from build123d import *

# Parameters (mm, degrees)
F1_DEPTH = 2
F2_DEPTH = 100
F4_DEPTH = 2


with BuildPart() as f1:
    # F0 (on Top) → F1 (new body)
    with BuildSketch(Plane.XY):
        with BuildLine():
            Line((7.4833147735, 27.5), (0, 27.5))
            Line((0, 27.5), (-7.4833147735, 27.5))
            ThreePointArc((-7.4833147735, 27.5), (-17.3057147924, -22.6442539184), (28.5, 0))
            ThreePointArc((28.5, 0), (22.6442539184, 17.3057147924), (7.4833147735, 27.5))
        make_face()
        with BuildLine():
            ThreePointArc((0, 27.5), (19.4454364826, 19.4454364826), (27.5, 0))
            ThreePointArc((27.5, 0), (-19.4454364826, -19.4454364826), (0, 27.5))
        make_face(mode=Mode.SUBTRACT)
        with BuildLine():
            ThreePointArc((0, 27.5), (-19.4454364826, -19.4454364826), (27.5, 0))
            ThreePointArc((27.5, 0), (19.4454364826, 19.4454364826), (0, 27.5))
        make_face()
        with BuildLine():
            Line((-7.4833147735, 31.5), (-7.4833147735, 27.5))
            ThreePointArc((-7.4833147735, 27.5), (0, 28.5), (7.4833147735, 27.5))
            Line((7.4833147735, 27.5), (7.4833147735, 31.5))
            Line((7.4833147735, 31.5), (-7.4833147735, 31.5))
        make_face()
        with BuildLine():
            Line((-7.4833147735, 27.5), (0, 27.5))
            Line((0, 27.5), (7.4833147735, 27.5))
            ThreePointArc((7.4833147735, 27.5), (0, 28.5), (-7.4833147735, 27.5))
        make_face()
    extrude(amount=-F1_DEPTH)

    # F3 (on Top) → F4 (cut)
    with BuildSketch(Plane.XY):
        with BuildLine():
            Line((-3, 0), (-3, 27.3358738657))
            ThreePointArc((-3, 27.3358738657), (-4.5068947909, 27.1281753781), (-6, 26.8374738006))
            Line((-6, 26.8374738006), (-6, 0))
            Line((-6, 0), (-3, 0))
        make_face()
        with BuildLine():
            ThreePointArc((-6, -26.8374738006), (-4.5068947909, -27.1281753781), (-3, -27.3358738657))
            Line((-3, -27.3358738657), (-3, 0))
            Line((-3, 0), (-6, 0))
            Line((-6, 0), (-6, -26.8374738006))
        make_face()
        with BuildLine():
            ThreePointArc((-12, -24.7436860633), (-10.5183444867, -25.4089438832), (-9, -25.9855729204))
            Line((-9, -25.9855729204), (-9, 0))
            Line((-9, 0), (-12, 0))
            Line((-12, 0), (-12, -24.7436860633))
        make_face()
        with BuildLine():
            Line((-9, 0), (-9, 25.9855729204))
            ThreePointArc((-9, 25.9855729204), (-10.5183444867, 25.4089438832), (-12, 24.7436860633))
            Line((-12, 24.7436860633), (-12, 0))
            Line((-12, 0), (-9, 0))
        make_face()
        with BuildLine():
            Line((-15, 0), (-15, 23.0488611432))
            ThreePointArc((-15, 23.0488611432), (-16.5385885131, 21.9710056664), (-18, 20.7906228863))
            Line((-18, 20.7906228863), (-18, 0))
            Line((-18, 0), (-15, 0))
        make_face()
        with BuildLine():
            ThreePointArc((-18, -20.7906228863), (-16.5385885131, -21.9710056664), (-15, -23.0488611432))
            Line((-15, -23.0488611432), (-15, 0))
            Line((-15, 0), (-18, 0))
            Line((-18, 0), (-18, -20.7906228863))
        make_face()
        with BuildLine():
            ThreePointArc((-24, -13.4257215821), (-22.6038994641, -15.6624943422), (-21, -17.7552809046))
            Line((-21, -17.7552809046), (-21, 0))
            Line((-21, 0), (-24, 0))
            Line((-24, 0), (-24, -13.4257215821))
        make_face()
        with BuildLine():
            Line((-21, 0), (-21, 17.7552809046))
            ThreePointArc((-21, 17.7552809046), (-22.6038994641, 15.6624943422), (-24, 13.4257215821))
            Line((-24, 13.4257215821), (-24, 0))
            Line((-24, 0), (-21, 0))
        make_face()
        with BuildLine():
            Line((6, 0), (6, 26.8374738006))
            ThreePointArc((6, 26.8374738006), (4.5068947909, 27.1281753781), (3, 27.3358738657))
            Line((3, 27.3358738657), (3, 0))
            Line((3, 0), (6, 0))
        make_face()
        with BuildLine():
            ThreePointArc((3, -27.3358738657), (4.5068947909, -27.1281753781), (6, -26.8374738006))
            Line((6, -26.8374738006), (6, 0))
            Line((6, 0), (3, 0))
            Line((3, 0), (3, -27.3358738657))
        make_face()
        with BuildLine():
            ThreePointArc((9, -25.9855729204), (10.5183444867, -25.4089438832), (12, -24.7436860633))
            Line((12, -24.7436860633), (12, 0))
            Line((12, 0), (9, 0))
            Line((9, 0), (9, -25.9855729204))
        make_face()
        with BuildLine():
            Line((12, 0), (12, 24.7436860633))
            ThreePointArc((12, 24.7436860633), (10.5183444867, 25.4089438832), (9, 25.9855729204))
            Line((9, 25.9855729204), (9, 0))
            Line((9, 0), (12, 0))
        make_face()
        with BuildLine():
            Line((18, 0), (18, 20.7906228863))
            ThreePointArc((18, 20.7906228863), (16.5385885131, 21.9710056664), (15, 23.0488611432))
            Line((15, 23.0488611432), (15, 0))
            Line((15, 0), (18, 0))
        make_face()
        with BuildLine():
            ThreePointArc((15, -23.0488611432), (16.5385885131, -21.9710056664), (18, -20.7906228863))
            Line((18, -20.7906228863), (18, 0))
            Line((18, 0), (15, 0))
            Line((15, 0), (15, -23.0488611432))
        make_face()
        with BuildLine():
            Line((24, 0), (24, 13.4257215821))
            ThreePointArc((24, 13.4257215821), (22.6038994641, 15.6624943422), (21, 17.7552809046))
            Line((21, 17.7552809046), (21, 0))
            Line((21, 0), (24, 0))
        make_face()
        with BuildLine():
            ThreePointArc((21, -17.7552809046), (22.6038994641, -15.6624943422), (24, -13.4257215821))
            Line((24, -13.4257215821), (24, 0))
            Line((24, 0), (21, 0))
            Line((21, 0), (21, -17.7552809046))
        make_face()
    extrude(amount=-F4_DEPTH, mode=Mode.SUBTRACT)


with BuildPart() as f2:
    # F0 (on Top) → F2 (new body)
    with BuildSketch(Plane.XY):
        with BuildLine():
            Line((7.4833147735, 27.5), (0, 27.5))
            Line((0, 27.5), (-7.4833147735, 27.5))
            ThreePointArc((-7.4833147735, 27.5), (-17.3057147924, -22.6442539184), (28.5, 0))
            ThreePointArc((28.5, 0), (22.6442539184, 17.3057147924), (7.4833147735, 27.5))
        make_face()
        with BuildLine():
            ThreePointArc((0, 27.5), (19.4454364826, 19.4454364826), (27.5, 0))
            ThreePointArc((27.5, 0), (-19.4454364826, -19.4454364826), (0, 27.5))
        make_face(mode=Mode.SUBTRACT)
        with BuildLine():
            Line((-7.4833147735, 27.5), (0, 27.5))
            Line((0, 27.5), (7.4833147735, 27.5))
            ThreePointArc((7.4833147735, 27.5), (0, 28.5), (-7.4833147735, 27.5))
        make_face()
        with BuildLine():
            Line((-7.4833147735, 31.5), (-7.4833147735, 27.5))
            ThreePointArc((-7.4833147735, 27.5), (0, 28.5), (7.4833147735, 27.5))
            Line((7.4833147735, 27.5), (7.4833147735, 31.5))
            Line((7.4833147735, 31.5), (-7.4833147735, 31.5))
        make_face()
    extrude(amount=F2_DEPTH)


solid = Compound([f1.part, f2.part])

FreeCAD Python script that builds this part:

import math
import FreeCAD as App
import Part
import Sketcher
Q = App.Units.Quantity

doc = App.newDocument("Part")
params = doc.addObject("Spreadsheet::Sheet", "Params")
for row, (alias, value) in enumerate([
    ("sketch1_radius", "28.5 mm"),
    ("sketch1_height", "4 mm"),
    ("pad1_length", "2 mm"),
    ("sketch2_radius", "27.5 mm"),
    ("pocket1_length", "2 mm"),
    ("sketch3_radius", "28.5 mm"),
    ("sketch3_radius2", "27.5 mm"),
    ("sketch3_height", "4 mm"),
    ("pad2_length", "100 mm"),
], start=1):
    params.set(f"A{row}", alias)
    params.set(f"B{row}", "=" + value)
    params.setAlias(f"B{row}", alias)

body = doc.addObject("PartDesign::Body", "Body")

sketch1 = body.newObject("Sketcher::SketchObject", "Sketch")
sketch1.AttachmentSupport = (doc.getObject("XY_Plane"), [""])
sketch1.MapMode = "FlatFace"
sketch1.addGeometry(Part.ArcOfCircle(Part.Circle(App.Vector(0, 0, 0), App.Vector(0, 0, 1), 28.5), math.radians(105.222757), math.radians(360)), False)
sketch1.addGeometry(Part.ArcOfCircle(Part.Circle(App.Vector(0, 0, 0), App.Vector(0, 0, 1), 28.5), math.radians(0), math.radians(74.777243)), False)
sketch1.addGeometry(Part.LineSegment(App.Vector(7.483315, 27.5, 0), App.Vector(7.483315, 31.5, 0)), False)
sketch1.addGeometry(Part.LineSegment(App.Vector(7.483315, 31.5, 0), App.Vector(-7.483315, 31.5, 0)), False)
sketch1.addGeometry(Part.LineSegment(App.Vector(-7.483315, 31.5, 0), App.Vector(-7.483315, 27.5, 0)), False)
sketch1.addConstraint(Sketcher.Constraint("Tangent", 0, 2, 1, 1))
sketch1.addConstraint(Sketcher.Constraint("Coincident", 1, 2, 2, 1))
sketch1.addConstraint(Sketcher.Constraint("Coincident", 2, 2, 3, 1))
sketch1.addConstraint(Sketcher.Constraint("Coincident", 3, 2, 4, 1))
sketch1.addConstraint(Sketcher.Constraint("Coincident", 4, 2, 0, 1))
sketch1.addConstraint(Sketcher.Constraint("Vertical", 2))
sketch1.addConstraint(Sketcher.Constraint("Horizontal", 3))
sketch1.addConstraint(Sketcher.Constraint("Vertical", 4))
sketch1.addConstraint(Sketcher.Constraint("Coincident", 0, 3, -1, 1))
sketch1.addConstraint(Sketcher.Constraint("Equal", 0, 1))
sketch1.addConstraint(Sketcher.Constraint("PointOnObject", 0, 2, -1))
sketch1.addConstraint(Sketcher.Constraint("Horizontal", 1, 2, 4, 2))
sketch1.addConstraint(Sketcher.Constraint("Radius", 0, Q("28.5 mm")))
sketch1.addConstraint(Sketcher.Constraint("DistanceY", 2, 1, 2, 2, Q("4 mm")))
sketch1.addConstraint(Sketcher.Constraint("DistanceY", -1, 1, 1, 2, Q("27.5 mm")))
sketch1.setExpression("Constraints[12]", "Params.sketch1_radius")
sketch1.setExpression("Constraints[13]", "Params.sketch1_height")
pad1 = body.newObject("PartDesign::Pad", "Pad")
pad1.Profile = sketch1
pad1.setExpression("Length", "Params.pad1_length")
pad1.Reversed = True

sketch2 = body.newObject("Sketcher::SketchObject", "Sketch001")
sketch2.AttachmentSupport = (doc.getObject("XY_Plane"), [""])
sketch2.MapMode = "FlatFace"
sketch2.addGeometry(Part.ArcOfCircle(Part.Circle(App.Vector(0, 0, 0), App.Vector(0, 0, 1), 27.5), math.radians(96.262913), math.radians(102.602265)), False)
sketch2.addGeometry(Part.LineSegment(App.Vector(-6, 26.837474, 0), App.Vector(-6, -26.837474, 0)), False)
sketch2.addGeometry(Part.ArcOfCircle(Part.Circle(App.Vector(0, 0, 0), App.Vector(0, 0, 1), 27.5), math.radians(-102.602265), math.radians(-96.262913)), False)
sketch2.addGeometry(Part.LineSegment(App.Vector(-3, -27.335874, 0), App.Vector(-3, 27.335874, 0)), False)
sketch2.addGeometry(Part.ArcOfCircle(Part.Circle(App.Vector(0, 0, 0), App.Vector(0, 0, 1), 27.5), math.radians(-115.872096), math.radians(-109.103324)), False)
sketch2.addGeometry(Part.LineSegment(App.Vector(-9, -25.985573, 0), App.Vector(-9, 25.985573, 0)), False)
sketch2.addGeometry(Part.ArcOfCircle(Part.Circle(App.Vector(0, 0, 0), App.Vector(0, 0, 1), 27.5), math.radians(109.103324), math.radians(115.872096)), False)
sketch2.addGeometry(Part.LineSegment(App.Vector(-12, 24.743686, 0), App.Vector(-12, -24.743686, 0)), False)
sketch2.addGeometry(Part.ArcOfCircle(Part.Circle(App.Vector(0, 0, 0), App.Vector(0, 0, 1), 27.5), math.radians(123.055731), math.radians(130.885193)), False)
sketch2.addGeometry(Part.LineSegment(App.Vector(-18, 20.790623, 0), App.Vector(-18, -20.790623, 0)), False)
sketch2.addGeometry(Part.ArcOfCircle(Part.Circle(App.Vector(0, 0, 0), App.Vector(0, 0, 1), 27.5), math.radians(-130.885193), math.radians(-123.055731)), False)
sketch2.addGeometry(Part.LineSegment(App.Vector(-15, -23.048861, 0), App.Vector(-15, 23.048861, 0)), False)
sketch2.addGeometry(Part.ArcOfCircle(Part.Circle(App.Vector(0, 0, 0), App.Vector(0, 0, 1), 27.5), math.radians(-150.77713), math.radians(-139.785829)), False)
sketch2.addGeometry(Part.LineSegment(App.Vector(-21, -17.755281, 0), App.Vector(-21, 17.755281, 0)), False)
sketch2.addGeometry(Part.ArcOfCircle(Part.Circle(App.Vector(0, 0, 0), App.Vector(0, 0, 1), 27.5), math.radians(139.785829), math.radians(150.77713)), False)
sketch2.addGeometry(Part.LineSegment(App.Vector(-24, 13.425722, 0), App.Vector(-24, -13.425722, 0)), False)
sketch2.addGeometry(Part.ArcOfCircle(Part.Circle(App.Vector(0, 0, 0), App.Vector(0, 0, 1), 27.5), math.radians(77.397735), math.radians(83.737087)), False)
sketch2.addGeometry(Part.LineSegment(App.Vector(3, 27.335874, 0), App.Vector(3, -27.335874, 0)), False)
sketch2.addGeometry(Part.ArcOfCircle(Part.Circle(App.Vector(0, 0, 0), App.Vector(0, 0, 1), 27.5), math.radians(-83.737087), math.radians(-77.397735)), False)
sketch2.addGeometry(Part.LineSegment(App.Vector(6, -26.837474, 0), App.Vector(6, 26.837474, 0)), False)
sketch2.addGeometry(Part.ArcOfCircle(Part.Circle(App.Vector(0, 0, 0), App.Vector(0, 0, 1), 27.5), math.radians(-70.896676), math.radians(-64.127904)), False)
sketch2.addGeometry(Part.LineSegment(App.Vector(12, -24.743686, 0), App.Vector(12, 24.743686, 0)), False)
sketch2.addGeometry(Part.ArcOfCircle(Part.Circle(App.Vector(0, 0, 0), App.Vector(0, 0, 1), 27.5), math.radians(64.127904), math.radians(70.896676)), False)
sketch2.addGeometry(Part.LineSegment(App.Vector(9, 25.985573, 0), App.Vector(9, -25.985573, 0)), False)
sketch2.addGeometry(Part.ArcOfCircle(Part.Circle(App.Vector(0, 0, 0), App.Vector(0, 0, 1), 27.5), math.radians(49.114807), math.radians(56.944269)), False)
sketch2.addGeometry(Part.LineSegment(App.Vector(15, 23.048861, 0), App.Vector(15, -23.048861, 0)), False)
sketch2.addGeometry(Part.ArcOfCircle(Part.Circle(App.Vector(0, 0, 0), App.Vector(0, 0, 1), 27.5), math.radians(-56.944269), math.radians(-49.114807)), False)
sketch2.addGeometry(Part.LineSegment(App.Vector(18, -20.790623, 0), App.Vector(18, 20.790623, 0)), False)
sketch2.addGeometry(Part.ArcOfCircle(Part.Circle(App.Vector(0, 0, 0), App.Vector(0, 0, 1), 27.5), math.radians(29.22287), math.radians(40.214171)), False)
sketch2.addGeometry(Part.LineSegment(App.Vector(21, 17.755281, 0), App.Vector(21, -17.755281, 0)), False)
sketch2.addGeometry(Part.ArcOfCircle(Part.Circle(App.Vector(0, 0, 0), App.Vector(0, 0, 1), 27.5), math.radians(-40.214171), math.radians(-29.22287)), False)
sketch2.addGeometry(Part.LineSegment(App.Vector(24, -13.425722, 0), App.Vector(24, 13.425722, 0)), False)
sketch2.addConstraint(Sketcher.Constraint("Coincident", 0, 2, 1, 1))
sketch2.addConstraint(Sketcher.Constraint("Coincident", 1, 2, 2, 1))
sketch2.addConstraint(Sketcher.Constraint("Coincident", 2, 2, 3, 1))
sketch2.addConstraint(Sketcher.Constraint("Coincident", 3, 2, 0, 1))
sketch2.addConstraint(Sketcher.Constraint("Coincident", 4, 2, 5, 1))
sketch2.addConstraint(Sketcher.Constraint("Coincident", 5, 2, 6, 1))
sketch2.addConstraint(Sketcher.Constraint("Coincident", 6, 2, 7, 1))
sketch2.addConstraint(Sketcher.Constraint("Coincident", 7, 2, 4, 1))
sketch2.addConstraint(Sketcher.Constraint("Coincident", 8, 2, 9, 1))
sketch2.addConstraint(Sketcher.Constraint("Coincident", 9, 2, 10, 1))
sketch2.addConstraint(Sketcher.Constraint("Coincident", 10, 2, 11, 1))
sketch2.addConstraint(Sketcher.Constraint("Coincident", 11, 2, 8, 1))
sketch2.addConstraint(Sketcher.Constraint("Coincident", 12, 2, 13, 1))
sketch2.addConstraint(Sketcher.Constraint("Coincident", 13, 2, 14, 1))
sketch2.addConstraint(Sketcher.Constraint("Coincident", 14, 2, 15, 1))
sketch2.addConstraint(Sketcher.Constraint("Coincident", 15, 2, 12, 1))
sketch2.addConstraint(Sketcher.Constraint("Coincident", 16, 2, 17, 1))
sketch2.addConstraint(Sketcher.Constraint("Coincident", 17, 2, 18, 1))
sketch2.addConstraint(Sketcher.Constraint("Coincident", 18, 2, 19, 1))
sketch2.addConstraint(Sketcher.Constraint("Coincident", 19, 2, 16, 1))
sketch2.addConstraint(Sketcher.Constraint("Coincident", 20, 2, 21, 1))
sketch2.addConstraint(Sketcher.Constraint("Coincident", 21, 2, 22, 1))
sketch2.addConstraint(Sketcher.Constraint("Coincident", 22, 2, 23, 1))
sketch2.addConstraint(Sketcher.Constraint("Coincident", 23, 2, 20, 1))
sketch2.addConstraint(Sketcher.Constraint("Coincident", 24, 2, 25, 1))
sketch2.addConstraint(Sketcher.Constraint("Coincident", 25, 2, 26, 1))
sketch2.addConstraint(Sketcher.Constraint("Coincident", 26, 2, 27, 1))
sketch2.addConstraint(Sketcher.Constraint("Coincident", 27, 2, 24, 1))
sketch2.addConstraint(Sketcher.Constraint("Coincident", 28, 2, 29, 1))
sketch2.addConstraint(Sketcher.Constraint("Coincident", 29, 2, 30, 1))
sketch2.addConstraint(Sketcher.Constraint("Coincident", 30, 2, 31, 1))
sketch2.addConstraint(Sketcher.Constraint("Coincident", 31, 2, 28, 1))
sketch2.addConstraint(Sketcher.Constraint("Vertical", 1))
sketch2.addConstraint(Sketcher.Constraint("Vertical", 3))
sketch2.addConstraint(Sketcher.Constraint("Vertical", 5))
sketch2.addConstraint(Sketcher.Constraint("Vertical", 7))
sketch2.addConstraint(Sketcher.Constraint("Vertical", 9))
sketch2.addConstraint(Sketcher.Constraint("Vertical", 11))
sketch2.addConstraint(Sketcher.Constraint("Vertical", 13))
sketch2.addConstraint(Sketcher.Constraint("Vertical", 15))
sketch2.addConstraint(Sketcher.Constraint("Vertical", 17))
sketch2.addConstraint(Sketcher.Constraint("Vertical", 19))
sketch2.addConstraint(Sketcher.Constraint("Vertical", 21))
sketch2.addConstraint(Sketcher.Constraint("Vertical", 23))
sketch2.addConstraint(Sketcher.Constraint("Vertical", 25))
sketch2.addConstraint(Sketcher.Constraint("Vertical", 27))
sketch2.addConstraint(Sketcher.Constraint("Vertical", 29))
sketch2.addConstraint(Sketcher.Constraint("Vertical", 31))
sketch2.addConstraint(Sketcher.Constraint("Coincident", 0, 3, -1, 1))
sketch2.addConstraint(Sketcher.Constraint("Coincident", 2, 3, -1, 1))
sketch2.addConstraint(Sketcher.Constraint("Coincident", 4, 3, -1, 1))
sketch2.addConstraint(Sketcher.Constraint("Coincident", 6, 3, -1, 1))
sketch2.addConstraint(Sketcher.Constraint("Coincident", 8, 3, -1, 1))
sketch2.addConstraint(Sketcher.Constraint("Coincident", 10, 3, -1, 1))
sketch2.addConstraint(Sketcher.Constraint("Coincident", 12, 3, -1, 1))
sketch2.addConstraint(Sketcher.Constraint("Coincident", 14, 3, -1, 1))
sketch2.addConstraint(Sketcher.Constraint("Coincident", 16, 3, -1, 1))
sketch2.addConstraint(Sketcher.Constraint("Coincident", 18, 3, -1, 1))
sketch2.addConstraint(Sketcher.Constraint("Coincident", 20, 3, -1, 1))
sketch2.addConstraint(Sketcher.Constraint("Coincident", 22, 3, -1, 1))
sketch2.addConstraint(Sketcher.Constraint("Coincident", 24, 3, -1, 1))
sketch2.addConstraint(Sketcher.Constraint("Coincident", 26, 3, -1, 1))
sketch2.addConstraint(Sketcher.Constraint("Coincident", 28, 3, -1, 1))
sketch2.addConstraint(Sketcher.Constraint("Coincident", 30, 3, -1, 1))
sketch2.addConstraint(Sketcher.Constraint("Equal", 0, 2))
sketch2.addConstraint(Sketcher.Constraint("Equal", 2, 4))
sketch2.addConstraint(Sketcher.Constraint("Equal", 4, 6))
sketch2.addConstraint(Sketcher.Constraint("Equal", 6, 8))
sketch2.addConstraint(Sketcher.Constraint("Equal", 8, 10))
sketch2.addConstraint(Sketcher.Constraint("Equal", 10, 12))
sketch2.addConstraint(Sketcher.Constraint("Equal", 12, 14))
sketch2.addConstraint(Sketcher.Constraint("Equal", 14, 16))
sketch2.addConstraint(Sketcher.Constraint("Equal", 16, 18))
sketch2.addConstraint(Sketcher.Constraint("Equal", 18, 20))
sketch2.addConstraint(Sketcher.Constraint("Equal", 20, 22))
sketch2.addConstraint(Sketcher.Constraint("Equal", 22, 24))
sketch2.addConstraint(Sketcher.Constraint("Equal", 24, 26))
sketch2.addConstraint(Sketcher.Constraint("Equal", 26, 28))
sketch2.addConstraint(Sketcher.Constraint("Equal", 28, 30))
sketch2.addConstraint(Sketcher.Constraint("Horizontal", 3, 2, 16, 2))
sketch2.addConstraint(Sketcher.Constraint("Horizontal", 1, 2, 18, 2))
sketch2.addConstraint(Sketcher.Constraint("Horizontal", 7, 2, 20, 2))
sketch2.addConstraint(Sketcher.Constraint("Horizontal", 5, 2, 22, 2))
sketch2.addConstraint(Sketcher.Constraint("Horizontal", 11, 2, 24, 2))
sketch2.addConstraint(Sketcher.Constraint("Horizontal", 9, 2, 26, 2))
sketch2.addConstraint(Sketcher.Constraint("Horizontal", 13, 2, 28, 2))
sketch2.addConstraint(Sketcher.Constraint("Horizontal", 15, 2, 30, 2))
sketch2.addConstraint(Sketcher.Constraint("Radius", 0, Q("27.5 mm")))
sketch2.addConstraint(Sketcher.Constraint("DistanceX", 0, 2, -1, 1, Q("6 mm")))
sketch2.addConstraint(Sketcher.Constraint("DistanceX", 2, 2, -1, 1, Q("3 mm")))
sketch2.addConstraint(Sketcher.Constraint("DistanceX", 4, 2, -1, 1, Q("9 mm")))
sketch2.addConstraint(Sketcher.Constraint("DistanceX", 6, 2, -1, 1, Q("12 mm")))
sketch2.addConstraint(Sketcher.Constraint("DistanceX", 8, 2, -1, 1, Q("18 mm")))
sketch2.addConstraint(Sketcher.Constraint("DistanceX", 10, 2, -1, 1, Q("15 mm")))
sketch2.addConstraint(Sketcher.Constraint("DistanceX", 12, 2, -1, 1, Q("21 mm")))
sketch2.addConstraint(Sketcher.Constraint("DistanceX", 14, 2, -1, 1, Q("24 mm")))
sketch2.setExpression("Constraints[87]", "Params.sketch2_radius")
pocket1 = body.newObject("PartDesign::Pocket", "Pocket")
pocket1.Profile = sketch2
pocket1.setExpression("Length", "Params.pocket1_length")
body2 = doc.addObject("PartDesign::Body", "Body001")

sketch3 = body2.newObject("Sketcher::SketchObject", "Sketch002")
sketch3.AttachmentSupport = (doc.getObject("XY_Plane001"), [""])
sketch3.MapMode = "FlatFace"
sketch3.addGeometry(Part.ArcOfCircle(Part.Circle(App.Vector(0, 0, 0), App.Vector(0, 0, 1), 28.5), math.radians(105.222757), math.radians(360)), False)
sketch3.addGeometry(Part.ArcOfCircle(Part.Circle(App.Vector(0, 0, 0), App.Vector(0, 0, 1), 28.5), math.radians(0), math.radians(74.777243)), False)
sketch3.addGeometry(Part.LineSegment(App.Vector(7.483315, 27.5, 0), App.Vector(7.483315, 31.5, 0)), False)
sketch3.addGeometry(Part.LineSegment(App.Vector(7.483315, 31.5, 0), App.Vector(-7.483315, 31.5, 0)), False)
sketch3.addGeometry(Part.LineSegment(App.Vector(-7.483315, 31.5, 0), App.Vector(-7.483315, 27.5, 0)), False)
sketch3.addGeometry(Part.ArcOfCircle(Part.Circle(App.Vector(0, 0, 0), App.Vector(0, 0, 1), 27.5), math.radians(90), math.radians(360)), False)
sketch3.addGeometry(Part.ArcOfCircle(Part.Circle(App.Vector(0, 0, 0), App.Vector(0, 0, 1), 27.5), math.radians(0), math.radians(90)), False)
sketch3.addConstraint(Sketcher.Constraint("Tangent", 0, 2, 1, 1))
sketch3.addConstraint(Sketcher.Constraint("Coincident", 1, 2, 2, 1))
sketch3.addConstraint(Sketcher.Constraint("Coincident", 2, 2, 3, 1))
sketch3.addConstraint(Sketcher.Constraint("Coincident", 3, 2, 4, 1))
sketch3.addConstraint(Sketcher.Constraint("Coincident", 4, 2, 0, 1))
sketch3.addConstraint(Sketcher.Constraint("Tangent", 5, 1, 6, 2))
sketch3.addConstraint(Sketcher.Constraint("Coincident", 6, 1, 5, 2))
sketch3.addConstraint(Sketcher.Constraint("Vertical", 2))
sketch3.addConstraint(Sketcher.Constraint("Horizontal", 3))
sketch3.addConstraint(Sketcher.Constraint("Vertical", 4))
sketch3.addConstraint(Sketcher.Constraint("Coincident", 0, 3, -1, 1))
sketch3.addConstraint(Sketcher.Constraint("Coincident", 5, 3, -1, 1))
sketch3.addConstraint(Sketcher.Constraint("Equal", 0, 1))
sketch3.addConstraint(Sketcher.Constraint("PointOnObject", 0, 2, -1))
sketch3.addConstraint(Sketcher.Constraint("PointOnObject", 5, 1, -2))
sketch3.addConstraint(Sketcher.Constraint("PointOnObject", 6, 1, -1))
sketch3.addConstraint(Sketcher.Constraint("Horizontal", 1, 2, 4, 2))
sketch3.addConstraint(Sketcher.Constraint("Horizontal", 4, 2, 5, 1))
sketch3.addConstraint(Sketcher.Constraint("Radius", 0, Q("28.5 mm")))
sketch3.addConstraint(Sketcher.Constraint("Radius", 5, Q("27.5 mm")))
sketch3.addConstraint(Sketcher.Constraint("DistanceY", 2, 1, 2, 2, Q("4 mm")))
sketch3.setExpression("Constraints[18]", "Params.sketch3_radius")
sketch3.setExpression("Constraints[19]", "Params.sketch3_radius2")
sketch3.setExpression("Constraints[20]", "Params.sketch3_height")
pad2 = body2.newObject("PartDesign::Pad", "Pad001")
pad2.Profile = sketch3
pad2.setExpression("Length", "Params.pad2_length")

doc.recompute()
